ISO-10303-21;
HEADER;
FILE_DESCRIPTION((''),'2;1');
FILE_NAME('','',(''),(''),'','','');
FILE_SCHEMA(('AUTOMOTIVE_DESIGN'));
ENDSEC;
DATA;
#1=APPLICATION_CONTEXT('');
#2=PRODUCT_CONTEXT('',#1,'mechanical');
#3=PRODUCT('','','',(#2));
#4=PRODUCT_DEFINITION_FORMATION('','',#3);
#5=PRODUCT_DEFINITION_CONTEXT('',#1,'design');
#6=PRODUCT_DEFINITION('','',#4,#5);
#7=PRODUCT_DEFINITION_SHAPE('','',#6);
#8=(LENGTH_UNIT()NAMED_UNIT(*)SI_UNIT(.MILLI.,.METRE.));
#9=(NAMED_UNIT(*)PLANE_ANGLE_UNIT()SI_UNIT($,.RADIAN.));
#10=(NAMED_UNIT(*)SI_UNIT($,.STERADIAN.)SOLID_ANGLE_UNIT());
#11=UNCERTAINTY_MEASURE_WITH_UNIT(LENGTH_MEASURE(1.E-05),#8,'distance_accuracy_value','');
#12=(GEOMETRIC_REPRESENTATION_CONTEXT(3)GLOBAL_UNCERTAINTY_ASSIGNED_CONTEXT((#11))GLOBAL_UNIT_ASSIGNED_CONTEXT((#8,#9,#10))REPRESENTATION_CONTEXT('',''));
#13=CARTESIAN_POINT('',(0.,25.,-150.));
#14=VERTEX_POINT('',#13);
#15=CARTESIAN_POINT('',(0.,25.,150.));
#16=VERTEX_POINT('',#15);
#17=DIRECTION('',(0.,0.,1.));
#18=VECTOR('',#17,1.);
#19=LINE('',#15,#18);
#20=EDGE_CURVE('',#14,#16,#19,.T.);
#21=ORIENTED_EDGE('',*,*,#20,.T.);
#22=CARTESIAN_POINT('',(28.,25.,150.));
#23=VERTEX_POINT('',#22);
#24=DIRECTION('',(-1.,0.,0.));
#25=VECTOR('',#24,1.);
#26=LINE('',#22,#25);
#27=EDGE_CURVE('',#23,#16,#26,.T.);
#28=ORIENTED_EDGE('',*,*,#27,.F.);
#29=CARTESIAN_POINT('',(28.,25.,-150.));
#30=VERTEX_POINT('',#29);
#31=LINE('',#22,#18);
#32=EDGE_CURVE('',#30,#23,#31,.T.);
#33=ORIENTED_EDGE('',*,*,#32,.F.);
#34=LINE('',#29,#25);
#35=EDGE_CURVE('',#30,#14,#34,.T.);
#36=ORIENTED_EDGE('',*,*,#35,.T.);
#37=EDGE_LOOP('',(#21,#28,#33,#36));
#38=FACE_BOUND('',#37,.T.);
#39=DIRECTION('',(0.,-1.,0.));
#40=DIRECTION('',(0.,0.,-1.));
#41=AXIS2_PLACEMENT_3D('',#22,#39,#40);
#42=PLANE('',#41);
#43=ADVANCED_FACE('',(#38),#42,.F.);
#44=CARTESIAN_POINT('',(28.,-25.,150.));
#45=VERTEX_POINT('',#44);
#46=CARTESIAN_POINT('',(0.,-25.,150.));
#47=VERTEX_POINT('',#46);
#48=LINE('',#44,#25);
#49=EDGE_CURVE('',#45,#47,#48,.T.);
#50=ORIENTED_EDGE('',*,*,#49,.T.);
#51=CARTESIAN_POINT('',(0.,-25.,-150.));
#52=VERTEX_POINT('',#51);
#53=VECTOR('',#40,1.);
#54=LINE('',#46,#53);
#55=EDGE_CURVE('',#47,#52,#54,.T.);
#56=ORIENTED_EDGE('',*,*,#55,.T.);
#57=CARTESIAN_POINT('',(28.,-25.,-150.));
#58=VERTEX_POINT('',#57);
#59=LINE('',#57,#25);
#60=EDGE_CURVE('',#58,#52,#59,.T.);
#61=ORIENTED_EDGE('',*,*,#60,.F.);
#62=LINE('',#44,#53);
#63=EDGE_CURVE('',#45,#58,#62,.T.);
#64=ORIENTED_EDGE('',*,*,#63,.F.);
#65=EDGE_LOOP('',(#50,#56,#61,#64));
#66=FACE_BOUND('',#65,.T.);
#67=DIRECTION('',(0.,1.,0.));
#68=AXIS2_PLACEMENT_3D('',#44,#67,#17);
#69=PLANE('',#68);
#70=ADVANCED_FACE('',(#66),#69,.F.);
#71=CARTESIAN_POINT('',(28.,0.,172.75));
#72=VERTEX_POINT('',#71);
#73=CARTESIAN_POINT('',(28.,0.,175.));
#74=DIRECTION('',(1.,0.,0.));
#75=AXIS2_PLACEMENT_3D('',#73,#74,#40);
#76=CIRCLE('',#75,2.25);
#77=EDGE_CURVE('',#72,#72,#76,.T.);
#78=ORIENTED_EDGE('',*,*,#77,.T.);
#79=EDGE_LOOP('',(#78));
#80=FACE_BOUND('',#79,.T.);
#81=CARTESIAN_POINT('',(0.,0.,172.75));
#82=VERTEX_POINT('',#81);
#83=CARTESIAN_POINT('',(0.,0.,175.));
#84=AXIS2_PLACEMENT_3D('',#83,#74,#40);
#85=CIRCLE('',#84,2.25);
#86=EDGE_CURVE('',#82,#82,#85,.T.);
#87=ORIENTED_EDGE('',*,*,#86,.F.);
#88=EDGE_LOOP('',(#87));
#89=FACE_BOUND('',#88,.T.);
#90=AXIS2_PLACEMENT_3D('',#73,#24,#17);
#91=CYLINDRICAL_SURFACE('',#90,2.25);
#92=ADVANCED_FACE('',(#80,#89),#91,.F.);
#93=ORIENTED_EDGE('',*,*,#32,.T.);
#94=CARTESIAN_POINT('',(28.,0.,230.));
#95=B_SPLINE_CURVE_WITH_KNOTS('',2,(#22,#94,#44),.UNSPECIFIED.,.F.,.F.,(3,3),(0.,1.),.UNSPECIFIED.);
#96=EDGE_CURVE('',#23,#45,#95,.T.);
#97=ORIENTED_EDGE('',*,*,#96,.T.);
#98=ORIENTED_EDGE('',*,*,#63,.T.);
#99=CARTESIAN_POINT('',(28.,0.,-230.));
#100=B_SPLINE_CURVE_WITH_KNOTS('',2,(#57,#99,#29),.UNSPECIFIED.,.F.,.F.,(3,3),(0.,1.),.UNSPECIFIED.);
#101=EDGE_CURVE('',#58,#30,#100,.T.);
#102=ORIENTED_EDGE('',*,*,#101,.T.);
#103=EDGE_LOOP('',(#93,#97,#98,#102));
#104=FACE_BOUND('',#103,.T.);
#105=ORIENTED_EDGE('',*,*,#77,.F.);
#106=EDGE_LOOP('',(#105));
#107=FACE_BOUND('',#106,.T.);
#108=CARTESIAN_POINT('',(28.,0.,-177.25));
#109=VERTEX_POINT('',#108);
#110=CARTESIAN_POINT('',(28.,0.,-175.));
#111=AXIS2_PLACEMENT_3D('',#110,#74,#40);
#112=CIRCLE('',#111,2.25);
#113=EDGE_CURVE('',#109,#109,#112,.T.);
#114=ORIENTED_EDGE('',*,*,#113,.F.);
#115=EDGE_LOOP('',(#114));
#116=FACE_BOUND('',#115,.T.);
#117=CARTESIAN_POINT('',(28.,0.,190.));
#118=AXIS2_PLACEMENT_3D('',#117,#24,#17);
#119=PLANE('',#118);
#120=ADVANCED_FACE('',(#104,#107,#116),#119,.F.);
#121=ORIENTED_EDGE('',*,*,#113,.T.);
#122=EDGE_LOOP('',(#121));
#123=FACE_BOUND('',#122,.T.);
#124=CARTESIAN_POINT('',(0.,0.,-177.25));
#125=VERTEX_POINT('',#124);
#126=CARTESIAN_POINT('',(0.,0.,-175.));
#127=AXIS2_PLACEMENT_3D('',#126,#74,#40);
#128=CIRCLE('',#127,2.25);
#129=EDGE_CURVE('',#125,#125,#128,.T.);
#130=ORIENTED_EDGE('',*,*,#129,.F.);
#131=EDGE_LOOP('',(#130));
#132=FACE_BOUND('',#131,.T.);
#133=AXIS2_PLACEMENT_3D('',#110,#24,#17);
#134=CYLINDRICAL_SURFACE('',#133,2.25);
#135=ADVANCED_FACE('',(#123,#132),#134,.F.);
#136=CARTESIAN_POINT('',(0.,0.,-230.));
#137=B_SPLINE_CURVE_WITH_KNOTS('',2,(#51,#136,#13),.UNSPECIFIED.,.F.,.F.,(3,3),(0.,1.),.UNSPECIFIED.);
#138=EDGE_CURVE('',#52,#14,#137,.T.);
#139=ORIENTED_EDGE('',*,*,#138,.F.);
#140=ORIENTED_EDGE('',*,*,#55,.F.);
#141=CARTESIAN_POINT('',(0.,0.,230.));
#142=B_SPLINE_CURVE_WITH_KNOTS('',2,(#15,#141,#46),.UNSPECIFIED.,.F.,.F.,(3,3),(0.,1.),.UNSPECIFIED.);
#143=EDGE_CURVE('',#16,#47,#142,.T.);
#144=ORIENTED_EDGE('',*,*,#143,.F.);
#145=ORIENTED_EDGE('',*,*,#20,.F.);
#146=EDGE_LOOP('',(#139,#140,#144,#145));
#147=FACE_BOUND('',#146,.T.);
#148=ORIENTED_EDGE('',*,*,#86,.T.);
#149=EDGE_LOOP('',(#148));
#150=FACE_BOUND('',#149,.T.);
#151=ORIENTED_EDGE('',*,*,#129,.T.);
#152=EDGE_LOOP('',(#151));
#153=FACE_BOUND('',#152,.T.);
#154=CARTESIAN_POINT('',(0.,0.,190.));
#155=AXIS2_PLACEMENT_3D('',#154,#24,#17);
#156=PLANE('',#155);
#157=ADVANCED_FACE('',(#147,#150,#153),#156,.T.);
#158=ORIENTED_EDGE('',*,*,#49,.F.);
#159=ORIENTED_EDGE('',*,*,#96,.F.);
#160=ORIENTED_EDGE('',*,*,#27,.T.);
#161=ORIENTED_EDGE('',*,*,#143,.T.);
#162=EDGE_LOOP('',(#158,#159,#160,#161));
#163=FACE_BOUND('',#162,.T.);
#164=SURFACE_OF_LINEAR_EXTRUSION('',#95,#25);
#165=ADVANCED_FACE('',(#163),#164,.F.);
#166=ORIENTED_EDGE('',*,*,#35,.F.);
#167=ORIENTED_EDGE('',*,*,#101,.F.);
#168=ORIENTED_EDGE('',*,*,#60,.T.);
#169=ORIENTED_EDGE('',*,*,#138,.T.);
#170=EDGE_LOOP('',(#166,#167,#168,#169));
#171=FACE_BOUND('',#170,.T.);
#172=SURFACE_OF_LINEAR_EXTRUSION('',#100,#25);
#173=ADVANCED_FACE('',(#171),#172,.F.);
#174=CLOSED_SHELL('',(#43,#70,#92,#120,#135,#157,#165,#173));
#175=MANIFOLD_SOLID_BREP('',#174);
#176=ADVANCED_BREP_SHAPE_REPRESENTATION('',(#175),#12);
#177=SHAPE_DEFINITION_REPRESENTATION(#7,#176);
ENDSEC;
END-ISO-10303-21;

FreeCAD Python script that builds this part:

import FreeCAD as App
import Part
import Sketcher

V = App.Vector
Q = App.Units.Quantity

doc = App.newDocument("Part")
body = doc.addObject("PartDesign::Body", "Body")

# Sketch on YZ plane
sketch1 = body.newObject("Sketcher::SketchObject", "Sketch")
sketch1.AttachmentSupport = (doc.getObject("YZ_Plane"), [""])
sketch1.MapMode = "FlatFace"
sketch1.addGeometry(Part.LineSegment(V(25, -150, 0), V(25, 150, 0)), False)
sketch1.addGeometry(Part.BSplineCurve([V(25, 150, 0), V(0, 230, 0), V(-25, 150, 0)], [3, 3], [0, 1], False, 2, [1, 1, 1], False), False)
sketch1.addGeometry(Part.LineSegment(V(-25, 150, 0), V(-25, -150, 0)), False)
sketch1.addGeometry(Part.BSplineCurve([V(25, -150, 0), V(0, -230, 0), V(-25, -150, 0)], [3, 3], [0, 1], False, 2, [1, 1, 1], False), False)
sketch1.addGeometry(Part.Circle(V(0, -175, 0), V(0, 0, 1), 2.25), False)
sketch1.addGeometry(Part.Circle(V(0, 175, 0), V(0, 0, 1), 2.25), False)
sketch1.addConstraint(Sketcher.Constraint("Block", 1))
sketch1.addConstraint(Sketcher.Constraint("Block", 3))
sketch1.addConstraint(Sketcher.Constraint("Coincident", 0, 2, 1, 1))
sketch1.addConstraint(Sketcher.Constraint("Coincident", 1, 2, 2, 1))
sketch1.addConstraint(Sketcher.Constraint("Coincident", 2, 2, 3, 2))
sketch1.addConstraint(Sketcher.Constraint("Coincident", 3, 1, 0, 1))
sketch1.addConstraint(Sketcher.Constraint("Equal", 4, 5))
sketch1.addConstraint(Sketcher.Constraint("Symmetric", 4, 3, 5, 3, -1, 1))
sketch1.addConstraint(Sketcher.Constraint("PointOnObject", 4, 3, -2))
sketch1.addConstraint(Sketcher.Constraint("Diameter", 4, Q("4.5 mm")))
sketch1.addConstraint(Sketcher.Constraint("DistanceY", 4, 3, -1, 1, Q("175 mm")))
pad1 = body.newObject("PartDesign::Pad", "Pad")
pad1.Profile = sketch1
pad1.Length = 28

doc.recompute()
